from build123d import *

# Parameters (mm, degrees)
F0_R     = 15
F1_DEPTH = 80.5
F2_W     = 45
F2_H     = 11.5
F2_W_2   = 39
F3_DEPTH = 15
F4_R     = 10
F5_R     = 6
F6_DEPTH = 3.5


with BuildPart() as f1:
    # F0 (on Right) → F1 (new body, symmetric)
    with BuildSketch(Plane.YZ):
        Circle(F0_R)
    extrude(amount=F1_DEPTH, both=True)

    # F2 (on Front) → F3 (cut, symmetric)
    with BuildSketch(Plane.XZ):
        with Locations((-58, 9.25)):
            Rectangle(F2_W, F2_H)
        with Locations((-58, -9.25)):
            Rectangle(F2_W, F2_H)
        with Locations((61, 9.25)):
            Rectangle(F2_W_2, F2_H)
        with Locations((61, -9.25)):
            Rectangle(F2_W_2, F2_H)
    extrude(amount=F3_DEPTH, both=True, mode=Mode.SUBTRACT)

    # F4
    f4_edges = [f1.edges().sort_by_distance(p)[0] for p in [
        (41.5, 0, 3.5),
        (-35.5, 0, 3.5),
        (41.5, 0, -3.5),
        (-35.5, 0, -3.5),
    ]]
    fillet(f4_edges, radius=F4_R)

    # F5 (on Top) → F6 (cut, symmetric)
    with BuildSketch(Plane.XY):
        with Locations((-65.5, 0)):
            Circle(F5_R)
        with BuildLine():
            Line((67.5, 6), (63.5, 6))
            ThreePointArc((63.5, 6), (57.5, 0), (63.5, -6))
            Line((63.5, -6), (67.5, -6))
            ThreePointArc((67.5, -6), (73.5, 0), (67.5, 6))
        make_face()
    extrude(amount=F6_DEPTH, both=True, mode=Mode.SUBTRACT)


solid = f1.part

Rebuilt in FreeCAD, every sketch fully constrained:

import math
import FreeCAD as App
import Part
import Sketcher
Q = App.Units.Quantity


def edges_at(feature, points):
    """Names of the edges that pass closest to the given points."""
    edges = feature.Shape.Edges
    near = lambda p: min(range(len(edges)), key=lambda i: edges[i].distToShape(Part.Vertex(*p))[0])
    return sorted({f"Edge{near(p) + 1}" for p in points})

doc = App.newDocument("Part")
body = doc.addObject("PartDesign::Body", "Body")

# Sketch on YZ plane
sketch1 = doc.addObject("Sketcher::SketchObject", "Sketch")
body.addObject(sketch1)
sketch1.AttachmentSupport = (doc.YZ_Plane, [""])
sketch1.MapMode = "FlatFace"
sketch1.addGeometry(Part.Circle(App.Vector(0, 0, 0), App.Vector(0, 0, 1), 15), False)
sketch1.addConstraint([
    Sketcher.Constraint("Coincident", 0, 3, -1, 1),
    Sketcher.Constraint("Diameter", 0, Q("30 mm")),
])
pad1 = doc.addObject("PartDesign::Pad", "Pad")
body.addObject(pad1)
pad1.Profile = sketch1
pad1.Length = 161
pad1.Midplane = True

# Sketch on XZ plane
sketch2 = doc.addObject("Sketcher::SketchObject", "Sketch001")
body.addObject(sketch2)
sketch2.AttachmentSupport = (doc.XZ_Plane, [""])
sketch2.MapMode = "FlatFace"
sketch2.addGeometry([
    Part.LineSegment(App.Vector(-80, 15, 0), App.Vector(-80, 4, 0)),  # 0
    Part.LineSegment(App.Vector(-80, 4, 0), App.Vector(-36, 4, 0)),  # 1
    Part.LineSegment(App.Vector(-36, 4, 0), App.Vector(-36, 15, 0)),  # 2
    Part.LineSegment(App.Vector(-36, 15, 0), App.Vector(-80, 15, 0)),  # 3
    Part.LineSegment(App.Vector(-80, -4, 0), App.Vector(-80, -15, 0)),  # 4
    Part.LineSegment(App.Vector(-80, -15, 0), App.Vector(-36, -15, 0)),  # 5
    Part.LineSegment(App.Vector(-36, -15, 0), App.Vector(-36, -4, 0)),  # 6
    Part.LineSegment(App.Vector(-36, -4, 0), App.Vector(-80, -4, 0)),  # 7
    Part.LineSegment(App.Vector(42, 15, 0), App.Vector(42, 4, 0)),  # 8
    Part.LineSegment(App.Vector(42, 4, 0), App.Vector(80, 4, 0)),  # 9
    Part.LineSegment(App.Vector(80, 4, 0), App.Vector(80, 15, 0)),  # 10
    Part.LineSegment(App.Vector(80, 15, 0), App.Vector(42, 15, 0)),  # 11
    Part.LineSegment(App.Vector(42, -4, 0), App.Vector(42, -15, 0)),  # 12
    Part.LineSegment(App.Vector(42, -15, 0), App.Vector(80, -15, 0)),  # 13
    Part.LineSegment(App.Vector(80, -15, 0), App.Vector(80, -4, 0)),  # 14
    Part.LineSegment(App.Vector(80, -4, 0), App.Vector(42, -4, 0)),  # 15
], False)
sketch2.addConstraint([
    Sketcher.Constraint("Coincident", 0, 2, 1, 1),
    Sketcher.Constraint("Coincident", 1, 2, 2, 1),
    Sketcher.Constraint("Coincident", 2, 2, 3, 1),
    Sketcher.Constraint("Coincident", 3, 2, 0, 1),
    Sketcher.Constraint("Coincident", 4, 2, 5, 1),
    Sketcher.Constraint("Coincident", 5, 2, 6, 1),
    Sketcher.Constraint("Coincident", 6, 2, 7, 1),
    Sketcher.Constraint("Coincident", 7, 2, 4, 1),
    Sketcher.Constraint("Coincident", 8, 2, 9, 1),
    Sketcher.Constraint("Coincident", 9, 2, 10, 1),
    Sketcher.Constraint("Coincident", 10, 2, 11, 1),
    Sketcher.Constraint("Coincident", 11, 2, 8, 1),
    Sketcher.Constraint("Coincident", 12, 2, 13, 1),
    Sketcher.Constraint("Coincident", 13, 2, 14, 1),
    Sketcher.Constraint("Coincident", 14, 2, 15, 1),
    Sketcher.Constraint("Coincident", 15, 2, 12, 1),
    Sketcher.Constraint("Vertical", 0),
    Sketcher.Constraint("Horizontal", 1),
    Sketcher.Constraint("Vertical", 2),
    Sketcher.Constraint("Horizontal", 3),
    Sketcher.Constraint("Vertical", 4),
    Sketcher.Constraint("Horizontal", 5),
    Sketcher.Constraint("Vertical", 6),
    Sketcher.Constraint("Horizontal", 7),
    Sketcher.Constraint("Vertical", 8),
    Sketcher.Constraint("Horizontal", 9),
    Sketcher.Constraint("Vertical", 10),
    Sketcher.Constraint("Horizontal", 11),
    Sketcher.Constraint("Vertical", 12),
    Sketcher.Constraint("Horizontal", 13),
    Sketcher.Constraint("Vertical", 14),
    Sketcher.Constraint("Horizontal", 15),
    Sketcher.Constraint("Symmetric", 7, 2, 9, 2, -1, 1),
    Sketcher.Constraint("Symmetric", 3, 2, 13, 2, -1, 1),
    Sketcher.Constraint("Symmetric", 0, 2, 9, 2, -2),
    Sketcher.Constraint("Symmetric", 2, 2, 5, 2, -1),
    Sketcher.Constraint("Symmetric", 11, 2, 12, 2, -1),
    Sketcher.Constraint("Horizontal", 7, 2, 14, 2),
    Sketcher.Constraint("DistanceX", 1, 1, 1, 2, Q("45 mm")),
    Sketcher.Constraint("DistanceX", 9, 1, 9, 2, Q("39 mm")),
    Sketcher.Constraint("DistanceY", 0, 2, 0, 1, Q("11.5 mm")),
    Sketcher.Constraint("DistanceY", -1, 1, 2, 2, Q("15 mm")),
    Sketcher.Constraint("DistanceX", 1, 2, 8, 2, Q("77 mm")),
])
pocket1 = doc.addObject("PartDesign::Pocket", "Pocket")
body.addObject(pocket1)
pocket1.Profile = sketch2
pocket1.Length = 30
pocket1.Midplane = True
doc.recompute()

fillet = doc.addObject("PartDesign::Fillet", "Fillet")
body.addObject(fillet)
fillet.Base = (pocket1, edges_at(pocket1, [
    (41.5, 0, 3.5),
    (-35.5, 0, 3.5),
    (41.5, 0, -3.5),
    (-35.5, 0, -3.5),
]))
fillet.Radius = 10

# Sketch on XY plane
sketch3 = doc.addObject("Sketcher::SketchObject", "Sketch002")
body.addObject(sketch3)
sketch3.AttachmentSupport = (doc.XY_Plane, [""])
sketch3.MapMode = "FlatFace"
sketch3.addGeometry([
    Part.Circle(App.Vector(-65.5, 0, 0), App.Vector(0, 0, 1), 6),  # 0
    Part.LineSegment(App.Vector(67.5, 6, 0), App.Vector(63.5, 6, 0)),  # 1
    Part.ArcOfCircle(Part.Circle(App.Vector(63.5, 0, 0), App.Vector(0, 0, 1), 6), math.radians(90), math.radians(270)),  # 2
    Part.LineSegment(App.Vector(63.5, -6, 0), App.Vector(67.5, -6, 0)),  # 3
    Part.ArcOfCircle(Part.Circle(App.Vector(67.5, 0, 0), App.Vector(0, 0, 1), 6), math.radians(-90), math.radians(90)),  # 4
], False)
sketch3.addConstraint([
    Sketcher.Constraint("Tangent", 1, 2, 2, 1),
    Sketcher.Constraint("Tangent", 2, 2, 3, 1),
    Sketcher.Constraint("Tangent", 3, 2, 4, 1),
    Sketcher.Constraint("Tangent", 4, 2, 1, 1),
    Sketcher.Constraint("Horizontal", 1),
    Sketcher.Constraint("Horizontal", 3),
    Sketcher.Constraint("Equal", 0, 2),
    Sketcher.Constraint("PointOnObject", 0, 3, -1),
    Sketcher.Constraint("PointOnObject", 2, 3, -1),
    Sketcher.Constraint("Diameter", 0, Q("12 mm")),
    Sketcher.Constraint("DistanceX", 1, 2, 1, 1, Q("4 mm")),
    Sketcher.Constraint("DistanceX", 0, 3, 2, 3, Q("129 mm")),
    Sketcher.Constraint("DistanceX", 0, 3, -1, 1, Q("65.5 mm")),
])
pocket2 = doc.addObject("PartDesign::Pocket", "Pocket001")
body.addObject(pocket2)
pocket2.Profile = sketch3
pocket2.Length = 7
pocket2.Midplane = True

doc.recompute()
